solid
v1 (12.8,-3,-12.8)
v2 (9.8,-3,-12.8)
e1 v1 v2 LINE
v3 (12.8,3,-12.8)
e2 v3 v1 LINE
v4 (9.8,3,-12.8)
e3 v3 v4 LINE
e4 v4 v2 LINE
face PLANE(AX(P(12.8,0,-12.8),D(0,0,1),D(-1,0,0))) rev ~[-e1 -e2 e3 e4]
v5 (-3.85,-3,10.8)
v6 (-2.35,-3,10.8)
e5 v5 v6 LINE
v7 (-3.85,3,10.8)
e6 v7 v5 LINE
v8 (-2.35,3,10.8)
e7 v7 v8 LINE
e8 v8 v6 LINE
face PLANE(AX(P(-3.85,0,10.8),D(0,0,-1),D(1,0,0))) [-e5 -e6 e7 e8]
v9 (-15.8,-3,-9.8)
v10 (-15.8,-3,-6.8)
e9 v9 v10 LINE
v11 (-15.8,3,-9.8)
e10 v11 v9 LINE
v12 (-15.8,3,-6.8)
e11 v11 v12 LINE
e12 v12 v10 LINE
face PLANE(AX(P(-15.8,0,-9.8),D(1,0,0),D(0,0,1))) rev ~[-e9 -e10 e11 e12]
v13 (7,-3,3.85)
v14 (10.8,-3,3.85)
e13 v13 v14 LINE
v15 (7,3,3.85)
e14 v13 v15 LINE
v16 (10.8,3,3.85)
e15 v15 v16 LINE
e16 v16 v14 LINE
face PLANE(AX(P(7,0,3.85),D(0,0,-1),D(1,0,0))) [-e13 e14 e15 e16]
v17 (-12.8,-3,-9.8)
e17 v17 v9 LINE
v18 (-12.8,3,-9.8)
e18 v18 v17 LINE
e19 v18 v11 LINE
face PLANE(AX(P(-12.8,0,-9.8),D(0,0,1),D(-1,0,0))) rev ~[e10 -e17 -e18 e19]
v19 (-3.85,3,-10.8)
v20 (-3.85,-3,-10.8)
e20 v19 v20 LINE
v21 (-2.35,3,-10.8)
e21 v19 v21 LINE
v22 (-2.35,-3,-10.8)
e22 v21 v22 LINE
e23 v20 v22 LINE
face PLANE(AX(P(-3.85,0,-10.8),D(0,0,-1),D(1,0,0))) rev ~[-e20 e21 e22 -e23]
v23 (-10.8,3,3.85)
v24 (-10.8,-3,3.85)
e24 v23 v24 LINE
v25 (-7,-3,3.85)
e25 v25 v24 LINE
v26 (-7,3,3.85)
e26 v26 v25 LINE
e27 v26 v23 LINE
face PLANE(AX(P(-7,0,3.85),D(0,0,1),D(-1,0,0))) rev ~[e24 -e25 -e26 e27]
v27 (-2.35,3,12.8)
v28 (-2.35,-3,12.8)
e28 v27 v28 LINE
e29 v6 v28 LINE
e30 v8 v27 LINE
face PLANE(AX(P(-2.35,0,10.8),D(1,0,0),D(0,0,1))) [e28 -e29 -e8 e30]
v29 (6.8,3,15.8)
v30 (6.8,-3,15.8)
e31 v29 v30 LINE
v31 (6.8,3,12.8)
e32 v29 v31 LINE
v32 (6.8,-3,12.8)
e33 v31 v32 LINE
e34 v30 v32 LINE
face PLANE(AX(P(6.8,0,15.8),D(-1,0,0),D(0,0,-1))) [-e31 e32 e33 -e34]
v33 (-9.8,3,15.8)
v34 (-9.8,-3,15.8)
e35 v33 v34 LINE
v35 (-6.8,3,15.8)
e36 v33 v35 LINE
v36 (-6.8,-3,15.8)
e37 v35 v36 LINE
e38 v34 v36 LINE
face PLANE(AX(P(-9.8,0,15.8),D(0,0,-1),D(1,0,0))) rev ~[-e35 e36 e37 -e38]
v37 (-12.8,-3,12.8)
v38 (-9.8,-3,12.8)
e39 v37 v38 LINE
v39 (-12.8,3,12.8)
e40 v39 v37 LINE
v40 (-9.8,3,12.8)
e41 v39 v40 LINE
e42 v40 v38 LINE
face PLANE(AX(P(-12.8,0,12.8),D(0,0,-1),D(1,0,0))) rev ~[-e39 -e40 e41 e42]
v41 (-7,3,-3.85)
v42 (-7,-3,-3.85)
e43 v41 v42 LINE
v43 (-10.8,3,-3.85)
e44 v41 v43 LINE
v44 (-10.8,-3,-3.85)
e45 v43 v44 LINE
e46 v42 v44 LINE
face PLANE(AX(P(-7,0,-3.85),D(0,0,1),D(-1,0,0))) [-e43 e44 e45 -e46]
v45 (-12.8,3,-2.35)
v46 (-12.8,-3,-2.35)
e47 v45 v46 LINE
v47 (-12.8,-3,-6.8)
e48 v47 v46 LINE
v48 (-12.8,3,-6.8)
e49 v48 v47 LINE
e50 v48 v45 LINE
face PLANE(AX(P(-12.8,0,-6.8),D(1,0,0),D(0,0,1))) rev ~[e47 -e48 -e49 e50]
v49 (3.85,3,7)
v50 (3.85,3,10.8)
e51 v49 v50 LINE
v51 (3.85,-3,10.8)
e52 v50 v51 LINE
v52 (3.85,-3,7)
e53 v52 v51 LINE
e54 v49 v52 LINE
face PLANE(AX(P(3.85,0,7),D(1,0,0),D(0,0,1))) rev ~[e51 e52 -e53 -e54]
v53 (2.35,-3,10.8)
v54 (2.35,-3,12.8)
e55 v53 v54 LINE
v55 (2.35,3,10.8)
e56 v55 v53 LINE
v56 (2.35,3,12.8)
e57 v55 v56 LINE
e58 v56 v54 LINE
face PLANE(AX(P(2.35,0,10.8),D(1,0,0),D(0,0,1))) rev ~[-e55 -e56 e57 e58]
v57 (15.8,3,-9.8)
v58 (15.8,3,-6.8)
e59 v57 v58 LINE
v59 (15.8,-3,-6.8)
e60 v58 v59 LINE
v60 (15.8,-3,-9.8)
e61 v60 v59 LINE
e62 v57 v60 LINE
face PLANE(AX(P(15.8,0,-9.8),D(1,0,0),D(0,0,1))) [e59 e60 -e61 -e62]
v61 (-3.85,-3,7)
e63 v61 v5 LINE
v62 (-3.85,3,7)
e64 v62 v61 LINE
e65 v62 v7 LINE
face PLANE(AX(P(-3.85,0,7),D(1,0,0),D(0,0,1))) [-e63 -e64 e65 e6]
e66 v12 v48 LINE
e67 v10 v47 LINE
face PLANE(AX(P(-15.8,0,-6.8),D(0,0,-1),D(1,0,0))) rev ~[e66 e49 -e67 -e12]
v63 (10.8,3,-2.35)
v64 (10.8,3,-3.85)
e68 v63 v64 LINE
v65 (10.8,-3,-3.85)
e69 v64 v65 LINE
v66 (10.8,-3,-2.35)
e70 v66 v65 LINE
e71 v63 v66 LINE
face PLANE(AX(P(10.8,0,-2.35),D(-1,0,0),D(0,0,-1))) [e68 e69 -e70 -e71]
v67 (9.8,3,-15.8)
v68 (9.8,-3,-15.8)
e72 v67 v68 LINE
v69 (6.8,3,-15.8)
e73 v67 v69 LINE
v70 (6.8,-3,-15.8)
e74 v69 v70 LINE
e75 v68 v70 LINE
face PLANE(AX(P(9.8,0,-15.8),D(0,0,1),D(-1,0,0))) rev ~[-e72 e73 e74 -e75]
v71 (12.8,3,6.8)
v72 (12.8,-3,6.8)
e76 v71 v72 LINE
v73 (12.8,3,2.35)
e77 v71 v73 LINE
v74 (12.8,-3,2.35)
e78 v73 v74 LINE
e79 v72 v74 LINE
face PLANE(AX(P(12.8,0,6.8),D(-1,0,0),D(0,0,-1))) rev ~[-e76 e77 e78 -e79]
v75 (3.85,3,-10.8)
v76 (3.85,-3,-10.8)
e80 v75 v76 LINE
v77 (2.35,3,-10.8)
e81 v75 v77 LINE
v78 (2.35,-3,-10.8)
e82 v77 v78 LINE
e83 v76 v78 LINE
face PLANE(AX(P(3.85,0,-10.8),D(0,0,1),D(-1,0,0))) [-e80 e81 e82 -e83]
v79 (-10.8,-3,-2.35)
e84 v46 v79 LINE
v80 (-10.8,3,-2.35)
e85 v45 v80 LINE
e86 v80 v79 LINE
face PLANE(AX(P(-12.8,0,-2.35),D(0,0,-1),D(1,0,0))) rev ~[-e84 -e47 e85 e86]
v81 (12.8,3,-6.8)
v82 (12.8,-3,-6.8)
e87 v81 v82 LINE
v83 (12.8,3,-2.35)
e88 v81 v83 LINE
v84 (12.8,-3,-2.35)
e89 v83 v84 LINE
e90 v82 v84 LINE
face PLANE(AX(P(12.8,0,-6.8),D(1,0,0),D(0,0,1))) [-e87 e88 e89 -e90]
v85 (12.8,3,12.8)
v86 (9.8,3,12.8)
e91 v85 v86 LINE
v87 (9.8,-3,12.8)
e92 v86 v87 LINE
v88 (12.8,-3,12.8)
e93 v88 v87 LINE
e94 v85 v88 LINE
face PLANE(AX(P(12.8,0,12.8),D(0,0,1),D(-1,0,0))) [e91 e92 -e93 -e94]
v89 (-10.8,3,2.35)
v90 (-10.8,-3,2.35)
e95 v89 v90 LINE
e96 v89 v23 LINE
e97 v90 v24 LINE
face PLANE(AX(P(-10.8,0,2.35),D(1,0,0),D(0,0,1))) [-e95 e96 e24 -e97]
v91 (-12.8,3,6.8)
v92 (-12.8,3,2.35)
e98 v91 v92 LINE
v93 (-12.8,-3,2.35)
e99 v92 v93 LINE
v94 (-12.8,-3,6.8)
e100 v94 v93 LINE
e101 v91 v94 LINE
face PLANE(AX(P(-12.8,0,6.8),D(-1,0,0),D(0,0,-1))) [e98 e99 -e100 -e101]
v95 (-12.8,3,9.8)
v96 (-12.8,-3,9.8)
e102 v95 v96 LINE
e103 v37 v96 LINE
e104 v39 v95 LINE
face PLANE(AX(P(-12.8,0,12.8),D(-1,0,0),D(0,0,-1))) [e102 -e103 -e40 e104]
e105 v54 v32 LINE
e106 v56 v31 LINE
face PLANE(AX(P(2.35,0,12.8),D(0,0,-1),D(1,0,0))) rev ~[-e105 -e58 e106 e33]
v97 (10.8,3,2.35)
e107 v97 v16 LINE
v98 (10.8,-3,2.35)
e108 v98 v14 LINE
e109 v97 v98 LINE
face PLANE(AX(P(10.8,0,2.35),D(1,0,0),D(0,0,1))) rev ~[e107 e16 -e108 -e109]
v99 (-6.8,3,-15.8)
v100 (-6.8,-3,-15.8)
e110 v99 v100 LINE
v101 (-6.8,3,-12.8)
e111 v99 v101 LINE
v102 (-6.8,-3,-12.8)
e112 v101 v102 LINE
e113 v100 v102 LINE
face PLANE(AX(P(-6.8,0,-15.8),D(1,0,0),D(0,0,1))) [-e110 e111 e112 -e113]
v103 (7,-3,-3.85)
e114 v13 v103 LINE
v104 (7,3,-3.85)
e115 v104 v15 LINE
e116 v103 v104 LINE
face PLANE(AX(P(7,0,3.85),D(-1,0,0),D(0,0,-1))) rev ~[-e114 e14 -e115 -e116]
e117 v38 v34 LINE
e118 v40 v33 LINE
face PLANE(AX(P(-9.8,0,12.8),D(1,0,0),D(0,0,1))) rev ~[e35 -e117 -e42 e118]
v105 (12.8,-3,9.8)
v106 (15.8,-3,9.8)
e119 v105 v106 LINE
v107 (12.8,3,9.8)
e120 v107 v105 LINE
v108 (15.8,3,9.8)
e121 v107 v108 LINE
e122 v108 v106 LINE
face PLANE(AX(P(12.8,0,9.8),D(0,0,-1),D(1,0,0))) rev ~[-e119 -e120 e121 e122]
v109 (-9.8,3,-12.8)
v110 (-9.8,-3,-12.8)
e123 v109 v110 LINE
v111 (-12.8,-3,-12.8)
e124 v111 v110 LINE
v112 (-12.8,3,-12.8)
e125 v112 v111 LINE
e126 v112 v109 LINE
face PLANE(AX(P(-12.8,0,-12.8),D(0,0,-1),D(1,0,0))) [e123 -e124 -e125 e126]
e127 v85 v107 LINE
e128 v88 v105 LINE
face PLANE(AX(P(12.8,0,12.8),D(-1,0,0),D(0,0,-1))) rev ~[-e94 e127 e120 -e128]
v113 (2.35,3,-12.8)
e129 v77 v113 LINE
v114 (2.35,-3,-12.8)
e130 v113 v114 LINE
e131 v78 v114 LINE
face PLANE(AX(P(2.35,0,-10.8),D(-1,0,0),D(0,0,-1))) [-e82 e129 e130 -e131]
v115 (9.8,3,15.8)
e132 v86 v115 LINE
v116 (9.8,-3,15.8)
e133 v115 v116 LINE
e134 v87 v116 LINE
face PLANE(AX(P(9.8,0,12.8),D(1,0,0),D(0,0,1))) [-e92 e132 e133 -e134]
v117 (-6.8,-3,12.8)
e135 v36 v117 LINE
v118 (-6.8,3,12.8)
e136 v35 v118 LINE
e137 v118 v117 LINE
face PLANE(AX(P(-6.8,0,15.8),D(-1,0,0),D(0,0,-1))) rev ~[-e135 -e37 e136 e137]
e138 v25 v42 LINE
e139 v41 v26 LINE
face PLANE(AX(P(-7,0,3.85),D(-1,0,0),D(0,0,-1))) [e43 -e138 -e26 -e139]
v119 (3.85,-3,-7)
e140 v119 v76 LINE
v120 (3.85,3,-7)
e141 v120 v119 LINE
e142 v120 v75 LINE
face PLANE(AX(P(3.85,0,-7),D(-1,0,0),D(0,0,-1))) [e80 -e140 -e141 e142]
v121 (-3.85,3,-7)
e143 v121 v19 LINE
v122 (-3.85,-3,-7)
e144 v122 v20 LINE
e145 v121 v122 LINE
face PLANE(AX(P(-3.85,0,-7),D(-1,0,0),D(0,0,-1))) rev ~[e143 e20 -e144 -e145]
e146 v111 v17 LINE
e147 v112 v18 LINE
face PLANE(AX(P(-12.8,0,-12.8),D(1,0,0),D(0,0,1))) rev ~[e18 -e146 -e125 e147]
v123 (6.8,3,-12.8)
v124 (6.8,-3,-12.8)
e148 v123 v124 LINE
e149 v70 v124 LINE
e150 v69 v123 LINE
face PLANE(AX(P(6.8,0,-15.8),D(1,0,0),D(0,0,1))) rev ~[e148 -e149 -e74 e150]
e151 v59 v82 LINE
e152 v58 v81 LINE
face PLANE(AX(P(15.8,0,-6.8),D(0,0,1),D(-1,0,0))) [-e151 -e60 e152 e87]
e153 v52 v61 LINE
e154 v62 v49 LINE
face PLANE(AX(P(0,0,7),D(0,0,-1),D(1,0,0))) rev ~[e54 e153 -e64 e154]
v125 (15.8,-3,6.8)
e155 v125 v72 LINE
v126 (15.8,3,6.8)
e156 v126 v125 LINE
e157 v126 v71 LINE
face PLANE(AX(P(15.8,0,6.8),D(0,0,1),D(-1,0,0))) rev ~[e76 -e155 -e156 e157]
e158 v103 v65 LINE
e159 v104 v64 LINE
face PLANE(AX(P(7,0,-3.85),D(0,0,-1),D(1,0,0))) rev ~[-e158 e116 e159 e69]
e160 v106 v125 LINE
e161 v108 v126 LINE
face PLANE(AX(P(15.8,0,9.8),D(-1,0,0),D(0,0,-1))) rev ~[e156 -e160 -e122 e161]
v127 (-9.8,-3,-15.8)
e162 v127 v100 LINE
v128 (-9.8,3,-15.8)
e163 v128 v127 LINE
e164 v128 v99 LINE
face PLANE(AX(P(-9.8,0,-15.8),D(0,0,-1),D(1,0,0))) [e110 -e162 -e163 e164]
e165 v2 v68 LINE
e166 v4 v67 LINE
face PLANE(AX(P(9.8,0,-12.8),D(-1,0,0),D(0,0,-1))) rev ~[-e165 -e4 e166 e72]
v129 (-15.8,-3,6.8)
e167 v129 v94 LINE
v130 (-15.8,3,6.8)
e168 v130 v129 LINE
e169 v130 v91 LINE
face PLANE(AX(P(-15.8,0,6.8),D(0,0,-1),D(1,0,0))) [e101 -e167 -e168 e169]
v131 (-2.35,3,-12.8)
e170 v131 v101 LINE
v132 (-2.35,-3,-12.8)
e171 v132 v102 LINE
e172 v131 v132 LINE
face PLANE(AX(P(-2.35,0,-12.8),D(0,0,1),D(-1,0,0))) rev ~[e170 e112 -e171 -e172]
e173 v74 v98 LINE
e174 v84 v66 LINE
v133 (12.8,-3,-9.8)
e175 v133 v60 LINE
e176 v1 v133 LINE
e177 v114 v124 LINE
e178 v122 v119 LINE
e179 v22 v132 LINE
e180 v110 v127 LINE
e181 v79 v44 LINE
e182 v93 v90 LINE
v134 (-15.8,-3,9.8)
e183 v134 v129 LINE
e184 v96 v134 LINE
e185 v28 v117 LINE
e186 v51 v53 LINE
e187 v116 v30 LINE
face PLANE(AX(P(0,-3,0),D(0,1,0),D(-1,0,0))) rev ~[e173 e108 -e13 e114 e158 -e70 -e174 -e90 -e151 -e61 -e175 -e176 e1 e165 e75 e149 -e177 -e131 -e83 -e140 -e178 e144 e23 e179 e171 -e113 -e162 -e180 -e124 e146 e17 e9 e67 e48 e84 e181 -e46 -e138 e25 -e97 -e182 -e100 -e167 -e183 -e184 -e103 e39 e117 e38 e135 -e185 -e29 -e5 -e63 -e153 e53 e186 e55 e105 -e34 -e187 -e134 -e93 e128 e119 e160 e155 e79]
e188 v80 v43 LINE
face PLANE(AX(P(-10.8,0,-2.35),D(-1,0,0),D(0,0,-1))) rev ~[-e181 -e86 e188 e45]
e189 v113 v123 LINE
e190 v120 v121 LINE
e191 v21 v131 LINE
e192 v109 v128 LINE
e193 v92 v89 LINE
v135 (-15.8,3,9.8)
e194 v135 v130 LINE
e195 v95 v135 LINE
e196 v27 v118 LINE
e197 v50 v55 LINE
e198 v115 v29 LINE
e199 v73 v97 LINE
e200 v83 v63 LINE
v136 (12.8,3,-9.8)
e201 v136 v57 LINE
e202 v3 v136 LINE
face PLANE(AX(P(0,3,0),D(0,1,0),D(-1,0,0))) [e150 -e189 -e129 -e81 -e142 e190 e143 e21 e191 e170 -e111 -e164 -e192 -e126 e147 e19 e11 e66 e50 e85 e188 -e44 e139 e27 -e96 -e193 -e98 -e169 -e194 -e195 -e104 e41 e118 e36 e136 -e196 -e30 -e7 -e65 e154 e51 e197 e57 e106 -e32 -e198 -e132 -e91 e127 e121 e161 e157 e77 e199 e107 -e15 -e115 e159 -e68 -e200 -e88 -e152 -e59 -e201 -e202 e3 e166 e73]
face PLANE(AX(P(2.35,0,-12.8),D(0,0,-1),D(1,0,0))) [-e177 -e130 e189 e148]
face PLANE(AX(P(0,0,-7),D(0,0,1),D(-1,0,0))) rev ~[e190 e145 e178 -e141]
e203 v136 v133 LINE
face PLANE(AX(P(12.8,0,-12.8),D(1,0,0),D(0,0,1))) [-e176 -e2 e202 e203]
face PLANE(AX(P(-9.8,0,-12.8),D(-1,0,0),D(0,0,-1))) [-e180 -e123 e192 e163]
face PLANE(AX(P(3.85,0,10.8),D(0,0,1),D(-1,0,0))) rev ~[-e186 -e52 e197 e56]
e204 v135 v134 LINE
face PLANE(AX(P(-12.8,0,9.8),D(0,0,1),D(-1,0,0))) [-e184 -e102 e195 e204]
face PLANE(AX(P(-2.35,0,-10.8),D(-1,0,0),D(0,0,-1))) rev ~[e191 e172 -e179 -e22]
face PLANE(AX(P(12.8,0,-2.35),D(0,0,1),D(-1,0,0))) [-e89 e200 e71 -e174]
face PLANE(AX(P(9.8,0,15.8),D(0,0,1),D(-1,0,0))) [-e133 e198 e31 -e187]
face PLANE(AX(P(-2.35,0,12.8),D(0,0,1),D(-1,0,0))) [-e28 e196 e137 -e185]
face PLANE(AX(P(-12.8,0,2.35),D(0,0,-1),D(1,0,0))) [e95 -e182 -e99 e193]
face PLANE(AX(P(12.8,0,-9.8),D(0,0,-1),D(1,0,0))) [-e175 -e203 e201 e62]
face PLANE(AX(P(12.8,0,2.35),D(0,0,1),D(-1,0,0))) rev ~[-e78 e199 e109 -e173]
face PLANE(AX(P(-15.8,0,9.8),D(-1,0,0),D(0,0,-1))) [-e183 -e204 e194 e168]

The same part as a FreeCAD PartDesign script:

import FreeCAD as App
import Part
import Sketcher
from FreeCAD import Vector


def add_polygon(sketch, points):
    """Adds a closed chain of lines whose ends are joined by coincident constraints."""
    first, n = sketch.GeometryCount, len(points)
    for a, b in zip(points, points[1:] + points[:1]):
        sketch.addGeometry(Part.LineSegment(App.Vector(*a, 0), App.Vector(*b, 0)), False)
    for i in range(n):
        sketch.addConstraint(Sketcher.Constraint("Coincident", first + i, 2, first + (i + 1) % n, 1))

doc = App.newDocument("Part")
body = doc.addObject("PartDesign::Body", "Body")

sketch1 = doc.addObject("Sketcher::SketchObject", "Sketch")
body.addObject(sketch1)
sketch1.AttachmentSupport = (doc.XZ_Plane, [""])
sketch1.MapMode = "FlatFace"
add_polygon(sketch1, [(10.8, 3.9), (7, 3.9), (7, -3.9), (10.8, -3.9), (10.8, -2.4), (12.8, -2.4), (12.8, -6.8), (15.8, -6.8), (15.8, -9.8), (12.8, -9.8), (12.8, -12.8), (9.8, -12.8), (9.8, -15.8), (6.8, -15.8), (6.8, -12.8), (2.4, -12.8), (2.4, -10.8), (3.9, -10.8), (3.9, -7), (-3.9, -7), (-3.9, -10.8), (-2.4, -10.8), (-2.4, -12.8), (-6.8, -12.8), (-6.8, -15.8), (-9.8, -15.8), (-9.8, -12.8), (-12.8, -12.8), (-12.8, -9.8), (-15.8, -9.8), (-15.8, -6.8), (-12.8, -6.8), (-12.8, -2.4), (-10.8, -2.4), (-10.8, -3.9), (-7, -3.9), (-7, 3.9), (-10.8, 3.9), (-10.8, 2.4), (-12.8, 2.4), (-12.8, 6.8), (-15.8, 6.8), (-15.8, 9.8), (-12.8, 9.8), (-12.8, 12.8), (-9.8, 12.8), (-9.8, 15.8), (-6.8, 15.8), (-6.8, 12.8), (-2.4, 12.8), (-2.4, 10.8), (-3.9, 10.8), (-3.9, 7), (3.9, 7), (3.9, 10.8), (2.4, 10.8), (2.4, 12.8), (6.8, 12.8), (6.8, 15.8), (9.8, 15.8), (9.8, 12.8), (12.8, 12.8), (12.8, 9.8), (15.8, 9.8), (15.8, 6.8), (12.8, 6.8), (12.8, 2.4), (10.8, 2.4)])
sketch1.addConstraint(Sketcher.Constraint("Horizontal", 0))
sketch1.addConstraint(Sketcher.Constraint("Vertical", 1))
sketch1.addConstraint(Sketcher.Constraint("Horizontal", 2))
sketch1.addConstraint(Sketcher.Constraint("Vertical", 3))
sketch1.addConstraint(Sketcher.Constraint("Horizontal", 4))
sketch1.addConstraint(Sketcher.Constraint("Vertical", 5))
sketch1.addConstraint(Sketcher.Constraint("Horizontal", 6))
sketch1.addConstraint(Sketcher.Constraint("Vertical", 7))
sketch1.addConstraint(Sketcher.Constraint("Horizontal", 8))
sketch1.addConstraint(Sketcher.Constraint("Vertical", 9))
sketch1.addConstraint(Sketcher.Constraint("Horizontal", 10))
sketch1.addConstraint(Sketcher.Constraint("Vertical", 11))
sketch1.addConstraint(Sketcher.Constraint("Horizontal", 12))
sketch1.addConstraint(Sketcher.Constraint("Vertical", 13))
sketch1.addConstraint(Sketcher.Constraint("Horizontal", 14))
sketch1.addConstraint(Sketcher.Constraint("Vertical", 15))
sketch1.addConstraint(Sketcher.Constraint("Horizontal", 16))
sketch1.addConstraint(Sketcher.Constraint("Vertical", 17))
sketch1.addConstraint(Sketcher.Constraint("Horizontal", 18))
sketch1.addConstraint(Sketcher.Constraint("Vertical", 19))
sketch1.addConstraint(Sketcher.Constraint("Horizontal", 20))
sketch1.addConstraint(Sketcher.Constraint("Vertical", 21))
sketch1.addConstraint(Sketcher.Constraint("Horizontal", 22))
sketch1.addConstraint(Sketcher.Constraint("Vertical", 23))
sketch1.addConstraint(Sketcher.Constraint("Horizontal", 24))
sketch1.addConstraint(Sketcher.Constraint("Vertical", 25))
sketch1.addConstraint(Sketcher.Constraint("Horizontal", 26))
sketch1.addConstraint(Sketcher.Constraint("Vertical", 27))
sketch1.addConstraint(Sketcher.Constraint("Horizontal", 28))
sketch1.addConstraint(Sketcher.Constraint("Vertical", 29))
sketch1.addConstraint(Sketcher.Constraint("Horizontal", 30))
sketch1.addConstraint(Sketcher.Constraint("Vertical", 31))
sketch1.addConstraint(Sketcher.Constraint("Horizontal", 32))
sketch1.addConstraint(Sketcher.Constraint("Vertical", 33))
sketch1.addConstraint(Sketcher.Constraint("Horizontal", 34))
sketch1.addConstraint(Sketcher.Constraint("Vertical", 35))
sketch1.addConstraint(Sketcher.Constraint("Horizontal", 36))
sketch1.addConstraint(Sketcher.Constraint("Vertical", 37))
sketch1.addConstraint(Sketcher.Constraint("Horizontal", 38))
sketch1.addConstraint(Sketcher.Constraint("Vertical", 39))
sketch1.addConstraint(Sketcher.Constraint("Horizontal", 40))
sketch1.addConstraint(Sketcher.Constraint("Vertical", 41))
sketch1.addConstraint(Sketcher.Constraint("Horizontal", 42))
sketch1.addConstraint(Sketcher.Constraint("Vertical", 43))
sketch1.addConstraint(Sketcher.Constraint("Horizontal", 44))
sketch1.addConstraint(Sketcher.Constraint("Vertical", 45))
sketch1.addConstraint(Sketcher.Constraint("Horizontal", 46))
sketch1.addConstraint(Sketcher.Constraint("Vertical", 47))
sketch1.addConstraint(Sketcher.Constraint("Horizontal", 48))
sketch1.addConstraint(Sketcher.Constraint("Vertical", 49))
sketch1.addConstraint(Sketcher.Constraint("Horizontal", 50))
sketch1.addConstraint(Sketcher.Constraint("Vertical", 51))
sketch1.addConstraint(Sketcher.Constraint("Horizontal", 52))
sketch1.addConstraint(Sketcher.Constraint("Vertical", 53))
sketch1.addConstraint(Sketcher.Constraint("Horizontal", 54))
sketch1.addConstraint(Sketcher.Constraint("Vertical", 55))
sketch1.addConstraint(Sketcher.Constraint("Horizontal", 56))
sketch1.addConstraint(Sketcher.Constraint("Vertical", 57))
sketch1.addConstraint(Sketcher.Constraint("Horizontal", 58))
sketch1.addConstraint(Sketcher.Constraint("Vertical", 59))
sketch1.addConstraint(Sketcher.Constraint("Horizontal", 60))
sketch1.addConstraint(Sketcher.Constraint("Vertical", 61))
sketch1.addConstraint(Sketcher.Constraint("Horizontal", 62))
sketch1.addConstraint(Sketcher.Constraint("Vertical", 63))
sketch1.addConstraint(Sketcher.Constraint("Horizontal", 64))
sketch1.addConstraint(Sketcher.Constraint("Vertical", 65))
sketch1.addConstraint(Sketcher.Constraint("Horizontal", 66))
sketch1.addConstraint(Sketcher.Constraint("Vertical", 67))
sketch1.addConstraint(Sketcher.Constraint("Symmetric", 0, 2, 34, 2, -1, 1))
sketch1.addConstraint(Sketcher.Constraint("Symmetric", 2, 2, 36, 2, -1, 1))
sketch1.addConstraint(Sketcher.Constraint("Symmetric", 4, 2, 38, 2, -1, 1))
sketch1.addConstraint(Sketcher.Constraint("Symmetric", 6, 2, 40, 2, -1, 1))
sketch1.addConstraint(Sketcher.Constraint("Symmetric", 8, 2, 42, 2, -1, 1))
sketch1.addConstraint(Sketcher.Constraint("Symmetric", 10, 2, 44, 2, -1, 1))
sketch1.addConstraint(Sketcher.Constraint("Symmetric", 12, 2, 46, 2, -1, 1))
sketch1.addConstraint(Sketcher.Constraint("Symmetric", 14, 2, 48, 2, -1, 1))
sketch1.addConstraint(Sketcher.Constraint("Symmetric", 16, 2, 50, 2, -1, 1))
sketch1.addConstraint(Sketcher.Constraint("Symmetric", 18, 2, 52, 2, -1, 1))
sketch1.addConstraint(Sketcher.Constraint("Symmetric", 20, 2, 54, 2, -1, 1))
sketch1.addConstraint(Sketcher.Constraint("Symmetric", 22, 2, 56, 2, -1, 1))
sketch1.addConstraint(Sketcher.Constraint("Symmetric", 24, 2, 58, 2, -1, 1))
sketch1.addConstraint(Sketcher.Constraint("Symmetric", 26, 2, 60, 2, -1, 1))
sketch1.addConstraint(Sketcher.Constraint("Symmetric", 28, 2, 62, 2, -1, 1))
sketch1.addConstraint(Sketcher.Constraint("Symmetric", 30, 2, 64, 2, -1, 1))
sketch1.addConstraint(Sketcher.Constraint("Symmetric", 32, 2, 66, 2, -1, 1))
sketch1.addConstraint(Sketcher.Constraint("Symmetric", 16, 2, 19, 2, -2))
sketch1.addConstraint(Sketcher.Constraint("Symmetric", 14, 2, 21, 2, -2))
sketch1.addConstraint(Sketcher.Constraint("Symmetric", 12, 2, 23, 2, -2))
sketch1.addConstraint(Sketcher.Constraint("Symmetric", 10, 2, 25, 2, -2))
sketch1.addConstraint(Sketcher.Constraint("Symmetric", 8, 2, 27, 2, -2))
sketch1.addConstraint(Sketcher.Constraint("Symmetric", 6, 2, 29, 2, -2))
sketch1.addConstraint(Sketcher.Constraint("Symmetric", 4, 2, 31, 2, -2))
sketch1.addConstraint(Sketcher.Constraint("Symmetric", 2, 2, 33, 2, -2))
sketch1.addConstraint(Sketcher.Constraint("Horizontal", 10, 2, 13, 2))
sketch1.addConstraint(Sketcher.Constraint("Vertical", 5, 2, 8, 2))
sketch1.addConstraint(Sketcher.Constraint("Equal", 8, 10))
sketch1.addConstraint(Sketcher.Constraint("Equal", 10, 12))
sketch1.addConstraint(Sketcher.Constraint("Equal", 52, 1))
sketch1.addConstraint(Sketcher.Constraint("Equal", 54, 3))
sketch1.addConstraint(Sketcher.Constraint("Equal", 56, 5))
sketch1.addConstraint(Sketcher.Constraint("Equal", 64, 7))
sketch1.addConstraint(Sketcher.Constraint("Equal", 7, 9))
sketch1.addConstraint(Sketcher.Constraint("Equal", 9, 11))
sketch1.addConstraint(Sketcher.Constraint("Equal", 66, 15))
sketch1.addConstraint(Sketcher.Constraint("Equal", 36, 17))
sketch1.addConstraint(Sketcher.Constraint("DistanceX", 4, 1, 4, 2, 2.0))
sketch1.addConstraint(Sketcher.Constraint("DistanceX", 6, 1, 6, 2, 3.0))
sketch1.addConstraint(Sketcher.Constraint("DistanceX", 0, 2, 0, 1, 3.8))
sketch1.addConstraint(Sketcher.Constraint("DistanceX", -1, 1, 0, 2, 7.0))
sketch1.addConstraint(Sketcher.Constraint("DistanceY", -1, 1, 0, 2, 3.85))
sketch1.addConstraint(Sketcher.Constraint("DistanceY", 3, 2, -1, 1, 2.35))
pad1 = doc.addObject("PartDesign::Pad", "Pad")
body.addObject(pad1)
pad1.Profile = sketch1
pad1.Length = 6
pad1.Midplane = True

doc.recompute()
